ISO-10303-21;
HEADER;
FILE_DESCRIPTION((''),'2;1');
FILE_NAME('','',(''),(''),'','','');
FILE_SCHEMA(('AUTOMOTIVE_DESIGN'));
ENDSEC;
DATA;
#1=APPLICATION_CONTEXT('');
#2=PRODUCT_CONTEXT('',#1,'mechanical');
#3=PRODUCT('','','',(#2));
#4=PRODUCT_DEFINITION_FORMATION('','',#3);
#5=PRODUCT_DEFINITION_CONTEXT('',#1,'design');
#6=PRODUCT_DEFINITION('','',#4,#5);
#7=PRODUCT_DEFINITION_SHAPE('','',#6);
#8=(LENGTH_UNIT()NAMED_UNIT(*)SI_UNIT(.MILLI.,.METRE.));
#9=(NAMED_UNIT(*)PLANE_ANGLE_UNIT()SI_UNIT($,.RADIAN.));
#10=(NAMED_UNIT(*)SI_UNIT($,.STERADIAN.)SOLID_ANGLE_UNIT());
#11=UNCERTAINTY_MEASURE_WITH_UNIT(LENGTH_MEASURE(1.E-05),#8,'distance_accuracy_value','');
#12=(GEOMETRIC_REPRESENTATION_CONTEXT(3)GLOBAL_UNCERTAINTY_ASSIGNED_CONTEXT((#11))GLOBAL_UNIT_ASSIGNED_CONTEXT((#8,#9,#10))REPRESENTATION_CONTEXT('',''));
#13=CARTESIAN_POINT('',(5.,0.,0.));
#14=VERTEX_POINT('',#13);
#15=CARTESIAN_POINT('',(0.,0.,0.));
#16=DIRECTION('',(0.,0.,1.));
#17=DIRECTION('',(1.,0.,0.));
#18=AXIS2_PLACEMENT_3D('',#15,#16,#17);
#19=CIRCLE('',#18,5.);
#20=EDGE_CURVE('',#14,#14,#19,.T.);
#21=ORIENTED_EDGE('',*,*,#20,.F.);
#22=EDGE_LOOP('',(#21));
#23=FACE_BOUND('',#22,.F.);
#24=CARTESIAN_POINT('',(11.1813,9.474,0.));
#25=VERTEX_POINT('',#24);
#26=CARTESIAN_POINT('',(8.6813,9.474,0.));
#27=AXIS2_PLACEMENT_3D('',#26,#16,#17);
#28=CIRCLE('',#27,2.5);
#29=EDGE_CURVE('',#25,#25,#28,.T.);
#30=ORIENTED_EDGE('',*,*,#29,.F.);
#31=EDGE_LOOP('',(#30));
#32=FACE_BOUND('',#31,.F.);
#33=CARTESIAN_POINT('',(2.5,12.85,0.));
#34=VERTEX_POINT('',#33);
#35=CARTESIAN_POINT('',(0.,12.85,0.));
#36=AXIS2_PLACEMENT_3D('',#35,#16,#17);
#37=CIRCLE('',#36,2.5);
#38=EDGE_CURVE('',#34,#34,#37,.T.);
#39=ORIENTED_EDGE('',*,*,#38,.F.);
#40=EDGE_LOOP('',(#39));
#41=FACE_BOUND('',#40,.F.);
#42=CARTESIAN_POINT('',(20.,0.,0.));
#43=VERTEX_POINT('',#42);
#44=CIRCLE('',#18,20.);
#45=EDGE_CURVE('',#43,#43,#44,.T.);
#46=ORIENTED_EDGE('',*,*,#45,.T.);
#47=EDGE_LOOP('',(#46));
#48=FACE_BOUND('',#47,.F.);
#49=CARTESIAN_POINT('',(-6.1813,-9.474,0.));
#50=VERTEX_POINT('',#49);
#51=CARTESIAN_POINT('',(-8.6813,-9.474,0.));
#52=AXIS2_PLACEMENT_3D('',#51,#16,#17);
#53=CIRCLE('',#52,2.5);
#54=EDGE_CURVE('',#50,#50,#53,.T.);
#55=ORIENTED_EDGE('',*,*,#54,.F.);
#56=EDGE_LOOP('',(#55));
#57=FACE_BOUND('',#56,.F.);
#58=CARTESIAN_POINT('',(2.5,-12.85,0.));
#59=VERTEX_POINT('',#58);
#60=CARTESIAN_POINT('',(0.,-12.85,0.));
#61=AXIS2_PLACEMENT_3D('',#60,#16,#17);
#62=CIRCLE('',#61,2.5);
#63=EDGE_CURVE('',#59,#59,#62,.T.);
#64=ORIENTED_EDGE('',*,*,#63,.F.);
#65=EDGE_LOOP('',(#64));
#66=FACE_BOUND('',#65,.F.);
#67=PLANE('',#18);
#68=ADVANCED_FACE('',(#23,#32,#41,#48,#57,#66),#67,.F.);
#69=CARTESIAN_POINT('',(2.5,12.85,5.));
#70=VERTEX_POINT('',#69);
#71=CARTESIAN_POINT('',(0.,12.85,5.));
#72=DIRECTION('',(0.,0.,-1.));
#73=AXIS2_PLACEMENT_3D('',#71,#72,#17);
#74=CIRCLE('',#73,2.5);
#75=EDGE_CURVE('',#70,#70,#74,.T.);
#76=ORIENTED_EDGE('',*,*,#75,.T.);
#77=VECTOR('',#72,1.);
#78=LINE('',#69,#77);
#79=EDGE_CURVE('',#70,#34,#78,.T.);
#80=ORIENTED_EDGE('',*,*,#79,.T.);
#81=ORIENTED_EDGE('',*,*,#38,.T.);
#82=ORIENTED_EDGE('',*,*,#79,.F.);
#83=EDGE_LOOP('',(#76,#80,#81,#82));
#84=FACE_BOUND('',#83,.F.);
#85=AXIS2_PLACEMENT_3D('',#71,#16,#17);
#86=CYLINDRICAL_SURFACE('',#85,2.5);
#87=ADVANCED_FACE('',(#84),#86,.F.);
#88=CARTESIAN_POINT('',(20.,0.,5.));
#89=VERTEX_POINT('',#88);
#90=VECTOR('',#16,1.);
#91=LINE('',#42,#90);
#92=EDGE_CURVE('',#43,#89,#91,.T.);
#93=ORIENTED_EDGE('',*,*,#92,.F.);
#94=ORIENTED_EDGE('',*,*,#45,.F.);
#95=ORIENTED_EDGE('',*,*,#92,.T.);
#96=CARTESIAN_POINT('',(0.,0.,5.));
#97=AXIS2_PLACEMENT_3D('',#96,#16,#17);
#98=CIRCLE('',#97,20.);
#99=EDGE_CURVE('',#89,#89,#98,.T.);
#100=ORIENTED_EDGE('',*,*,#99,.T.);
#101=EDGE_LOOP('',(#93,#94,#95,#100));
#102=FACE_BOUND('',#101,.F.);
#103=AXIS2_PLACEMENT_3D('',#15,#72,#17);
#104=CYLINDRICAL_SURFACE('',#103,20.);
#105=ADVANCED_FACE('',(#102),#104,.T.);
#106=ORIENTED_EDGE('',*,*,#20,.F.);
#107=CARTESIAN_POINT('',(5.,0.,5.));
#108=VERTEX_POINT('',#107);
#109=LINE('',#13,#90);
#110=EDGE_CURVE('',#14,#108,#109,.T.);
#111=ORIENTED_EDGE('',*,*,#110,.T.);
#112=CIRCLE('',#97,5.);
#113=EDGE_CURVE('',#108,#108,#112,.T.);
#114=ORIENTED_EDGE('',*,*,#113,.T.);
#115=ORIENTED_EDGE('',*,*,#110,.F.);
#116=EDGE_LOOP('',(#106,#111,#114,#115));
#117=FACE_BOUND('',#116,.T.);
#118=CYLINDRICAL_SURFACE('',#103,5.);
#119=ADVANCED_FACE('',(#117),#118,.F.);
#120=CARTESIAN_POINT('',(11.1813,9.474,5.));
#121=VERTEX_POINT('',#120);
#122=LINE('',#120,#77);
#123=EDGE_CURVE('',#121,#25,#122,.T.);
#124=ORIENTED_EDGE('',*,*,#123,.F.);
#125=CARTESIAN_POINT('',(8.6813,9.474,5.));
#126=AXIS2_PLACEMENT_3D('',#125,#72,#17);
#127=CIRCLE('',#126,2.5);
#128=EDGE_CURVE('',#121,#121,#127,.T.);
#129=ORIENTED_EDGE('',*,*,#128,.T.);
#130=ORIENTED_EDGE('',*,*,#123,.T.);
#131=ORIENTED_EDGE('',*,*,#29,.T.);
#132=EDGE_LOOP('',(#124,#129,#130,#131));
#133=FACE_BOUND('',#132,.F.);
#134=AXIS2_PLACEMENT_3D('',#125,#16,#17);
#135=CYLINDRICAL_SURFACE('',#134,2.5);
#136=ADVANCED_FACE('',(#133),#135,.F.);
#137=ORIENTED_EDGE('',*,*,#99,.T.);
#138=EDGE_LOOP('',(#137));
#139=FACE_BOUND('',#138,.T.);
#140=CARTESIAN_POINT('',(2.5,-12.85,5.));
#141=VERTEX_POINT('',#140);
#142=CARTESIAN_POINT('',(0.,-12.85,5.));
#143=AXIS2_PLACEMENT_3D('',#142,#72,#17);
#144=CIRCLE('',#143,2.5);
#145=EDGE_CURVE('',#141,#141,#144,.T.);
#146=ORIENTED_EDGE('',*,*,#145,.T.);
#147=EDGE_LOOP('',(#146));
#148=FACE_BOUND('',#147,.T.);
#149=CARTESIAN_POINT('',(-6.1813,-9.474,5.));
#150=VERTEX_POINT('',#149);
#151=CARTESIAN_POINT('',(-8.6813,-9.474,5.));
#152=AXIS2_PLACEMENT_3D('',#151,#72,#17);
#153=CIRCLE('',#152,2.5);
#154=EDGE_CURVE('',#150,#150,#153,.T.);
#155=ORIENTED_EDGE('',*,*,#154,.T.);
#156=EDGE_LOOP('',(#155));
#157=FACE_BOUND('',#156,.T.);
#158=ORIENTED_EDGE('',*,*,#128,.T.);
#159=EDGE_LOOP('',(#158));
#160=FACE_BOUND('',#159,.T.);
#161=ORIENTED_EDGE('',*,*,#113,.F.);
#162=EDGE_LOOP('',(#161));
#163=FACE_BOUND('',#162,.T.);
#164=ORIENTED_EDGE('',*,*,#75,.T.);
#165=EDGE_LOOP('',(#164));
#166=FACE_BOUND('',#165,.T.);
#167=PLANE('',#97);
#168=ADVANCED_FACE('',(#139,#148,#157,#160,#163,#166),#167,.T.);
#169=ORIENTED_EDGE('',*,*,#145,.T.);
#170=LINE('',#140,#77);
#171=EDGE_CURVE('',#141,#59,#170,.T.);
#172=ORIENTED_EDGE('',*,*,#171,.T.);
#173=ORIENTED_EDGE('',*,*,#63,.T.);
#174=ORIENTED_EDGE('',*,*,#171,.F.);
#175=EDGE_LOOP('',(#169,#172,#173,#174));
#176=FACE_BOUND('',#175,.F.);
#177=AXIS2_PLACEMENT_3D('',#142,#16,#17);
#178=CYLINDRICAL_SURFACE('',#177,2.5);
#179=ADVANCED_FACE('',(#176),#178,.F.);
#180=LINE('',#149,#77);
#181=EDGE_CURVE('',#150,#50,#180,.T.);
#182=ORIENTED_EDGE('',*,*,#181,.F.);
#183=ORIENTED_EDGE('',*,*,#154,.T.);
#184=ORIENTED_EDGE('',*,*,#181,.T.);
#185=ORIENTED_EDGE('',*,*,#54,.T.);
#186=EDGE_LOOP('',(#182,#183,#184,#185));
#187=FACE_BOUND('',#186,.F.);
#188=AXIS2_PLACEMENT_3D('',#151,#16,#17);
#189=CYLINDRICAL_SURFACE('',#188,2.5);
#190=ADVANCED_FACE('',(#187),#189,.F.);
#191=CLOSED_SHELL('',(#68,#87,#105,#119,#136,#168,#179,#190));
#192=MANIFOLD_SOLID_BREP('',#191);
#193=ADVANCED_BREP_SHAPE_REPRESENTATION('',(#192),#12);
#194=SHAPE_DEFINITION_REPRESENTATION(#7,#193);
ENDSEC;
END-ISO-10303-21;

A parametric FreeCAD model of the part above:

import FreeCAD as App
import Part
import Sketcher

V = App.Vector
Q = App.Units.Quantity

doc = App.newDocument("Part")
body = doc.addObject("PartDesign::Body", "Body")

# Sketch on XY plane
sketch1 = body.newObject("Sketcher::SketchObject", "Sketch")
sketch1.AttachmentSupport = (doc.getObject("XY_Plane"), [""])
sketch1.MapMode = "FlatFace"
sketch1.addGeometry([
    Part.Circle(V(0, 0, 0), V(0, 0, 1), 20),
    Part.Circle(V(0, 0, 0), V(0, 0, 1), 5),
], False)
sketch1.addConstraint([
    Sketcher.Constraint("Coincident", 0, 3, -1, 1),
    Sketcher.Constraint("Coincident", 1, 3, -1, 1),
    Sketcher.Constraint("Diameter", 0, Q("40 mm")),
    Sketcher.Constraint("Diameter", 1, Q("10 mm")),
])
pad1 = body.newObject("PartDesign::Pad", "Pad")
pad1.Profile = sketch1
pad1.Length = 5

# Sketch on XY plane
sketch2 = body.newObject("Sketcher::SketchObject", "Sketch001")
sketch2.AttachmentSupport = (doc.getObject("XY_Plane"), [""])
sketch2.MapMode = "FlatFace"
sketch2.AttachmentOffset = App.Placement(V(0, 0, 5), App.Rotation())
sketch2.addGeometry([
    Part.Circle(V(0, -12.85, 0), V(0, 0, 1), 2.5),
    Part.Circle(V(-8.6813, -9.474, 0), V(0, 0, 1), 2.5),
    Part.Circle(V(0, 12.85, 0), V(0, 0, 1), 2.5),
    Part.Circle(V(8.6813, 9.474, 0), V(0, 0, 1), 2.5),
], False)
sketch2.addConstraint([
    Sketcher.Constraint("Equal", 0, 1),
    Sketcher.Constraint("Equal", 1, 2),
    Sketcher.Constraint("Equal", 2, 3),
    Sketcher.Constraint("Symmetric", 0, 3, 2, 3, -1, 1),
    Sketcher.Constraint("Symmetric", 1, 3, 3, 3, -1, 1),
    Sketcher.Constraint("PointOnObject", 0, 3, -2),
    Sketcher.Constraint("Diameter", 0, Q("5 mm")),
    Sketcher.Constraint("DistanceY", 0, 3, -1, 1, Q("12.85 mm")),
    Sketcher.Constraint("DistanceY", 1, 3, -1, 1, Q("9.474 mm")),
    Sketcher.Constraint("DistanceX", 1, 3, -1, 1, Q("8.6813 mm")),
])
pocket1 = body.newObject("PartDesign::Pocket", "Pocket")
pocket1.Profile = sketch2
pocket1.Length = 5

doc.recompute()
